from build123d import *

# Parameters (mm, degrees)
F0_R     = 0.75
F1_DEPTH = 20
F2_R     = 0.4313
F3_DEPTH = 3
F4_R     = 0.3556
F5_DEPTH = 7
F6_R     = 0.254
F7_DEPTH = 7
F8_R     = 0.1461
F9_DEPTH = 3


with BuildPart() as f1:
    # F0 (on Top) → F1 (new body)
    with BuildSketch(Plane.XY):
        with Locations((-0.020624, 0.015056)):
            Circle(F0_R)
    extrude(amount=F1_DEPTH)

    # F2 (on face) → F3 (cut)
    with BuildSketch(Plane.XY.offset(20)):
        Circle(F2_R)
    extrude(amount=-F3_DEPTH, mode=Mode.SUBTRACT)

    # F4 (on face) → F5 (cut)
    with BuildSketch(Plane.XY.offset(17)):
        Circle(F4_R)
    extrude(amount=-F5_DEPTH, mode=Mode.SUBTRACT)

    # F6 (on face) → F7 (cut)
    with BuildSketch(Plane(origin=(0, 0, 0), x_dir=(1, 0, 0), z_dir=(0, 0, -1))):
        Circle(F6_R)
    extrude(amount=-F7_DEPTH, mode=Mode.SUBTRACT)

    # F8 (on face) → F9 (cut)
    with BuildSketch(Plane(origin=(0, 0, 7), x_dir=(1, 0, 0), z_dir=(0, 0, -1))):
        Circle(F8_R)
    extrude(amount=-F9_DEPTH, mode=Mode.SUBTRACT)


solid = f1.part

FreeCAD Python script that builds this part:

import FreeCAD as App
import Part
import Sketcher
from FreeCAD import Vector
Q = App.Units.Quantity

doc = App.newDocument("Part")
params = doc.addObject("Spreadsheet::Sheet", "Params")
for row, (alias, value) in enumerate([
    ("sketch1_diameter", "1.5 mm"),
    ("pad1_length", "20 mm"),
    ("pocket1_length", "3 mm"),
    ("pocket2_length", "7 mm"),
    ("pocket3_length", "7 mm"),
    ("pocket4_length", "3 mm"),
], start=1):
    params.set(f"A{row}", alias)
    params.set(f"B{row}", "=" + value)
    params.setAlias(f"B{row}", alias)

body = doc.addObject("PartDesign::Body", "Body")

sketch1 = body.newObject("Sketcher::SketchObject", "Sketch")
sketch1.AttachmentSupport = (doc.getObject("XY_Plane"), [""])
sketch1.MapMode = "FlatFace"
sketch1.addGeometry(Part.Circle(Vector(0, 0, 0), Vector(0, 0, 1), 0.8), False)
sketch1.addConstraint(Sketcher.Constraint("Diameter", 0, Q("1.5 mm")))
sketch1.addConstraint(Sketcher.Constraint("DistanceX", 0, 3, -1, 1, Q("0.020624 mm")))
sketch1.addConstraint(Sketcher.Constraint("DistanceY", -1, 1, 0, 3, Q("0.015056 mm")))
sketch1.setExpression("Constraints[0]", "Params.sketch1_diameter")
pad1 = body.newObject("PartDesign::Pad", "Pad")
pad1.Profile = sketch1
pad1.setExpression("Length", "Params.pad1_length")

sketch2 = body.newObject("Sketcher::SketchObject", "Sketch001")
sketch2.AttachmentSupport = (doc.getObject("XY_Plane"), [""])
sketch2.MapMode = "FlatFace"
sketch2.AttachmentOffset = App.Placement(Vector(0, 0, 20), App.Rotation())
sketch2.addGeometry(Part.Circle(Vector(0, 0, 0), Vector(0, 0, 1), 0.43), False)
sketch2.addConstraint(Sketcher.Constraint("Coincident", 0, 3, -1, 1))
sketch2.addConstraint(Sketcher.Constraint("Diameter", 0, Q("0.8626 mm")))
pocket1 = body.newObject("PartDesign::Pocket", "Pocket")
pocket1.Profile = sketch2
pocket1.setExpression("Length", "Params.pocket1_length")

sketch3 = body.newObject("Sketcher::SketchObject", "Sketch002")
sketch3.AttachmentSupport = (doc.getObject("XY_Plane"), [""])
sketch3.MapMode = "FlatFace"
sketch3.AttachmentOffset = App.Placement(Vector(0, 0, 17), App.Rotation())
sketch3.addGeometry(Part.Circle(Vector(0, 0, 0), Vector(0, 0, 1), 0.36), False)
sketch3.addConstraint(Sketcher.Constraint("Coincident", 0, 3, -1, 1))
sketch3.addConstraint(Sketcher.Constraint("Diameter", 0, Q("0.7112 mm")))
pocket2 = body.newObject("PartDesign::Pocket", "Pocket001")
pocket2.Profile = sketch3
pocket2.setExpression("Length", "Params.pocket2_length")

sketch4 = body.newObject("Sketcher::SketchObject", "Sketch003")
sketch4.AttachmentSupport = (doc.getObject("XY_Plane"), [""])
sketch4.MapMode = "FlatFace"
sketch4.addGeometry(Part.Circle(Vector(0, 0, 0), Vector(0, 0, 1), 0.25), False)
sketch4.addConstraint(Sketcher.Constraint("Coincident", 0, 3, -1, 1))
sketch4.addConstraint(Sketcher.Constraint("Diameter", 0, Q("0.508 mm")))
pocket3 = body.newObject("PartDesign::Pocket", "Pocket002")
pocket3.Profile = sketch4
pocket3.setExpression("Length", "Params.pocket3_length")
pocket3.Reversed = True

sketch5 = body.newObject("Sketcher::SketchObject", "Sketch004")
sketch5.AttachmentSupport = (doc.getObject("XY_Plane"), [""])
sketch5.MapMode = "FlatFace"
sketch5.AttachmentOffset = App.Placement(Vector(0, 0, 7), App.Rotation())
sketch5.addGeometry(Part.Circle(Vector(0, 0, 0), Vector(0, 0, 1), 0.15), False)
sketch5.addConstraint(Sketcher.Constraint("Coincident", 0, 3, -1, 1))
sketch5.addConstraint(Sketcher.Constraint("Diameter", 0, Q("0.2922 mm")))
pocket4 = body.newObject("PartDesign::Pocket", "Pocket003")
pocket4.Profile = sketch5
pocket4.setExpression("Length", "Params.pocket4_length")
pocket4.Reversed = True

doc.recompute()
